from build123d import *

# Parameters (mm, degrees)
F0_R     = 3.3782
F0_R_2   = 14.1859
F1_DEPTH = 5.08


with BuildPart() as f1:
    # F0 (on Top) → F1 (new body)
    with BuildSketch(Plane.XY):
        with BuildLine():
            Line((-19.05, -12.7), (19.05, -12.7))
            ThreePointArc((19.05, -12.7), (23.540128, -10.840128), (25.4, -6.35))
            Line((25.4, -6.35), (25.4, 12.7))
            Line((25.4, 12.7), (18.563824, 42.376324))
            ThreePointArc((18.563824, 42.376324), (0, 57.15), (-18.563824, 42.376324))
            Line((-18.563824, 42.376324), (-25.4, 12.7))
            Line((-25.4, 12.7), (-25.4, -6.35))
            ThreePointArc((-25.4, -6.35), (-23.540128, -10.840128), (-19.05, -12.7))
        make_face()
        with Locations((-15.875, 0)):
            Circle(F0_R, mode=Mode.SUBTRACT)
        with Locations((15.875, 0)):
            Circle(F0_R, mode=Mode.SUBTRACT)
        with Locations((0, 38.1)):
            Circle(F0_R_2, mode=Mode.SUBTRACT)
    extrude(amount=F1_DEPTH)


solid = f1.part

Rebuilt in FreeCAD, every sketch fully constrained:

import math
import FreeCAD as App
import Part
import Sketcher
from FreeCAD import Vector
Q = App.Units.Quantity

doc = App.newDocument("Part")
body = doc.addObject("PartDesign::Body", "Body")

sketch1 = doc.addObject("Sketcher::SketchObject", "Sketch")
body.addObject(sketch1)
sketch1.AttachmentSupport = (doc.XY_Plane, [""])
sketch1.MapMode = "FlatFace"
sketch1.addGeometry([
    Part.LineSegment(Vector(-19.05, -12.7, 0), Vector(19.05, -12.7, 0)),
    Part.ArcOfCircle(Part.Circle(Vector(19.05, -6.35, 0), Vector(0, 0, 1), 6.35), math.radians(-89.999998), math.radians(-0.000002)),
    Part.LineSegment(Vector(25.4, -6.35, 0), Vector(25.4, 12.7, 0)),
    Part.LineSegment(Vector(25.4, 12.7, 0), Vector(18.563824, 42.376324, 0)),
    Part.ArcOfCircle(Part.Circle(Vector(0, 38.1, 0), Vector(0, 0, 1), 19.05), math.radians(12.972241), math.radians(167.027759)),
    Part.LineSegment(Vector(-18.563824, 42.376324, 0), Vector(-25.4, 12.7, 0)),
    Part.LineSegment(Vector(-25.4, 12.7, 0), Vector(-25.4, -6.35, 0)),
    Part.ArcOfCircle(Part.Circle(Vector(-19.05, -6.35, 0), Vector(0, 0, 1), 6.35), math.radians(-179.999998), math.radians(-90.000002)),
    Part.Circle(Vector(-15.875, 0, 0), Vector(0, 0, 1), 3.3782),
    Part.Circle(Vector(15.875, 0, 0), Vector(0, 0, 1), 3.3782),
    Part.Circle(Vector(0, 38.1, 0), Vector(0, 0, 1), 14.1859),
], False)
sketch1.addConstraint([
    Sketcher.Constraint("Tangent", 0, 2, 1, 1),
    Sketcher.Constraint("Tangent", 1, 2, 2, 1),
    Sketcher.Constraint("Coincident", 2, 2, 3, 1),
    Sketcher.Constraint("Tangent", 3, 2, 4, 1),
    Sketcher.Constraint("Tangent", 4, 2, 5, 1),
    Sketcher.Constraint("Coincident", 5, 2, 6, 1),
    Sketcher.Constraint("Tangent", 6, 2, 7, 1),
    Sketcher.Constraint("Tangent", 7, 2, 0, 1),
    Sketcher.Constraint("Horizontal", 0),
    Sketcher.Constraint("Vertical", 2),
    Sketcher.Constraint("Vertical", 6),
    Sketcher.Constraint("Coincident", 10, 3, 4, 3),
    Sketcher.Constraint("Equal", 1, 7),
    Sketcher.Constraint("Equal", 8, 9),
    Sketcher.Constraint("Symmetric", 8, 3, 9, 3, -1, 1),
    Sketcher.Constraint("Symmetric", 3, 2, 4, 2, -2),
    Sketcher.Constraint("PointOnObject", 8, 3, -1),
    Sketcher.Constraint("Horizontal", 2, 2, 5, 2),
    Sketcher.Constraint("Radius", 1, Q("0.25 in")),
    Sketcher.Constraint("Radius", 4, Q("0.75 in")),
    Sketcher.Constraint("Diameter", 8, Q("0.266 in")),
    Sketcher.Constraint("Diameter", 10, Q("1.117 in")),
    Sketcher.Constraint("DistanceX", 0, 1, 0, 2, Q("1.5 in")),
    Sketcher.Constraint("DistanceY", 0, 2, 4, 3, Q("2 in")),
    Sketcher.Constraint("DistanceY", 0, 2, 2, 2, Q("1 in")),
    Sketcher.Constraint("DistanceY", -1, 1, 4, 3, Q("1.5 in")),
    Sketcher.Constraint("DistanceX", 8, 3, 9, 3, Q("1.25 in")),
])
pad1 = doc.addObject("PartDesign::Pad", "Pad")
body.addObject(pad1)
pad1.Profile = sketch1
pad1.Length = Q("0.2 in")

doc.recompute()
